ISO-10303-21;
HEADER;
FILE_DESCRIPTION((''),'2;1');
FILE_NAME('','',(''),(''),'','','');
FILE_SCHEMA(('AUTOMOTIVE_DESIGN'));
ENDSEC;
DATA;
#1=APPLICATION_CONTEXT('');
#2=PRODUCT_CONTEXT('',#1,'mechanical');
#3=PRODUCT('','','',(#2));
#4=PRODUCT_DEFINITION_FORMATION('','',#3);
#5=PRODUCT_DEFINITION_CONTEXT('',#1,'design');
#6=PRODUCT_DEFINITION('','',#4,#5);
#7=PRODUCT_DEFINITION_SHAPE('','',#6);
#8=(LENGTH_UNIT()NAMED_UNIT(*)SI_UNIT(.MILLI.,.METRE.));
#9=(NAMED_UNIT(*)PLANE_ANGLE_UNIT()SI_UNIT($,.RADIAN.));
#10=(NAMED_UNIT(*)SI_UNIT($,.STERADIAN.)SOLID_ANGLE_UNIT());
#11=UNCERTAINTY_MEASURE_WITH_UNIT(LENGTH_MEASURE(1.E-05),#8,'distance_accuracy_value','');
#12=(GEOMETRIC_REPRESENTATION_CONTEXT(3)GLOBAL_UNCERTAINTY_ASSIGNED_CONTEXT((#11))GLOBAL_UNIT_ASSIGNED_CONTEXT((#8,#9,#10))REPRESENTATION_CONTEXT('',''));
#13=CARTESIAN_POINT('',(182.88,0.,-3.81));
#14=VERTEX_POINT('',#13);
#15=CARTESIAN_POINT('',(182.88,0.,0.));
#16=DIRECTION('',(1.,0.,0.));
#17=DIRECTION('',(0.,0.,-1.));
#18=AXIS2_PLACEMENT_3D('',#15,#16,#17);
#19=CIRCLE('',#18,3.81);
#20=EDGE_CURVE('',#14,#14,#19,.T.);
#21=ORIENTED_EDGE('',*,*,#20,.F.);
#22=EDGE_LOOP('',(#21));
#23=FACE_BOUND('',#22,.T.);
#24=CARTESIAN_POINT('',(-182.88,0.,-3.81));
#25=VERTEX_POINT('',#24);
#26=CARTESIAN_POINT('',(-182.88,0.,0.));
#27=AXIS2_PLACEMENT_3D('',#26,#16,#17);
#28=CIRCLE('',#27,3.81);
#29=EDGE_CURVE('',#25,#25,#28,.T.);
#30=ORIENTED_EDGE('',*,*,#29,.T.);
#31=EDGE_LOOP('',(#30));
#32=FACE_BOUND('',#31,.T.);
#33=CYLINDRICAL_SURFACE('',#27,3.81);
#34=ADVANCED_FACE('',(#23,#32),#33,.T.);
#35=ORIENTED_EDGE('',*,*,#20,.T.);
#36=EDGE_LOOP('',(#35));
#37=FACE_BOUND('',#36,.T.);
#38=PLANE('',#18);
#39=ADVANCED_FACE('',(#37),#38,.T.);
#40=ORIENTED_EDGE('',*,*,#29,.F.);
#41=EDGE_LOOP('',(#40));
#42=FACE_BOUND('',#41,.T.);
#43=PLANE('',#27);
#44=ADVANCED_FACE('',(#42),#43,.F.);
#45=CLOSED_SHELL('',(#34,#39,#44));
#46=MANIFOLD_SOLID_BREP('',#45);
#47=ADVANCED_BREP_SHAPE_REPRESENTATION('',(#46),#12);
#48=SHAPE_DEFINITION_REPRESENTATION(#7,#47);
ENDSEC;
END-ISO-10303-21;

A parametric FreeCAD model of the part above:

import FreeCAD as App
import Part
import Sketcher
from FreeCAD import Vector
Q = App.Units.Quantity

doc = App.newDocument("Part")
body = doc.addObject("PartDesign::Body", "Body")

# Sketch on YZ plane
sketch1 = doc.addObject("Sketcher::SketchObject", "Sketch")
body.addObject(sketch1)
sketch1.AttachmentSupport = (doc.YZ_Plane, [""])
sketch1.MapMode = "FlatFace"
sketch1.addGeometry(Part.Circle(Vector(0, 0, 0), Vector(0, 0, 1), 3.8), False)
sketch1.addConstraint([
    Sketcher.Constraint("Coincident", 0, 3, -1, 1),
    Sketcher.Constraint("Diameter", 0, Q("0.3 in")),
])
pad1 = doc.addObject("PartDesign::Pad", "Pad")
body.addObject(pad1)
pad1.Profile = sketch1
pad1.Type = "TwoLengths"
pad1.Length = Q("7.2 in")
pad1.Length2 = Q("7.2 in")

doc.recompute()
